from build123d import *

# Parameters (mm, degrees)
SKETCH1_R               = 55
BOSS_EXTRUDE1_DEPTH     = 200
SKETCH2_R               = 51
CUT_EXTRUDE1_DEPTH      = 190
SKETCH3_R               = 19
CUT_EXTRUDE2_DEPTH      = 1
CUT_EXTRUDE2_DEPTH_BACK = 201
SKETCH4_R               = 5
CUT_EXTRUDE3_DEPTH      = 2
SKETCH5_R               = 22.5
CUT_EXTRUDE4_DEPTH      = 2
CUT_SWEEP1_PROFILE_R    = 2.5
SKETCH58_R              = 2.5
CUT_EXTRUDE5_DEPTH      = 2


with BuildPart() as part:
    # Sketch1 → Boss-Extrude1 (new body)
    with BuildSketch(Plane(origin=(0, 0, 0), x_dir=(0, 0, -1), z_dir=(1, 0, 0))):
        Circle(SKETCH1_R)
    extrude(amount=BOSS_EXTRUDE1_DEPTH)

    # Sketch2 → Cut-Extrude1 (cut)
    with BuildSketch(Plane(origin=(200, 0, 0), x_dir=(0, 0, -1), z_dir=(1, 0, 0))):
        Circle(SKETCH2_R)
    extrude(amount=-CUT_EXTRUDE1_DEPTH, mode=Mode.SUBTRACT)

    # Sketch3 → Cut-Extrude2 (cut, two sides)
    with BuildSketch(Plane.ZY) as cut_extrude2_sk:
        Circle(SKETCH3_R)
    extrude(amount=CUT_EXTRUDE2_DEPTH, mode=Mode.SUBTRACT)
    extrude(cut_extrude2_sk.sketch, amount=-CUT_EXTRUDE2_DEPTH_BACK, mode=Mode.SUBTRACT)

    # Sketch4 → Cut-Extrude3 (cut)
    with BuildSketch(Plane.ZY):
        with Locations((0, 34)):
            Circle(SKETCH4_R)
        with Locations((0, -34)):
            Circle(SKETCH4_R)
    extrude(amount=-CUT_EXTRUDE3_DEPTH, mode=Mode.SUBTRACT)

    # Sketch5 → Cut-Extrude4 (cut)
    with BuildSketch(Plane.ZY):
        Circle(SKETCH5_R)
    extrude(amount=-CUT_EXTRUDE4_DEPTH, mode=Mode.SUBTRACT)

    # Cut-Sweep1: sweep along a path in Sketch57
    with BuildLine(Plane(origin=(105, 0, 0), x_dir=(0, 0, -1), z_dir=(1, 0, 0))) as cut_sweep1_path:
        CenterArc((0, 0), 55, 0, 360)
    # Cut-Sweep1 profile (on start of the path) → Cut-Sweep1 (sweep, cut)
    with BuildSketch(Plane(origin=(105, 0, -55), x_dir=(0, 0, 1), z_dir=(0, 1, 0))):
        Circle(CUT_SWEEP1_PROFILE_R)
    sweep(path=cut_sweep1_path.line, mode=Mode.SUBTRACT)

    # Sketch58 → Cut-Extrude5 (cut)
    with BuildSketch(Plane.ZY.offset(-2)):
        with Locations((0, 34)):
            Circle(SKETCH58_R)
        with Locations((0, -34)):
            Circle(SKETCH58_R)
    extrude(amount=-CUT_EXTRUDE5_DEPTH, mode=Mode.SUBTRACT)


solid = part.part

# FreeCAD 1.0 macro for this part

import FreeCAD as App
import Part
import Sketcher

doc = App.newDocument("Part")
body = doc.addObject("PartDesign::Body", "Body")

# Sketch on YZ plane
sketch1 = body.newObject("Sketcher::SketchObject", "Sketch")
sketch1.AttachmentSupport = (doc.getObject("YZ_Plane"), [""])
sketch1.MapMode = "FlatFace"
sketch1.addGeometry(Part.Circle(App.Vector(0, 0, 0), App.Vector(0, 0, 1), 55), False)
sketch1.addConstraint([
    Sketcher.Constraint("Coincident", 0, 3, -1, 1),
    Sketcher.Constraint("Diameter", 0, 110.0),
])
pad1 = body.newObject("PartDesign::Pad", "Pad")
pad1.Profile = sketch1
pad1.Length = 200

# Sketch on YZ plane
sketch2 = body.newObject("Sketcher::SketchObject", "Sketch001")
sketch2.AttachmentSupport = (doc.getObject("YZ_Plane"), [""])
sketch2.MapMode = "FlatFace"
sketch2.AttachmentOffset = App.Placement(App.Vector(0, 0, 200), App.Rotation())
sketch2.addGeometry(Part.Circle(App.Vector(0, 0, 0), App.Vector(0, 0, 1), 51), False)
sketch2.addConstraint([
    Sketcher.Constraint("Coincident", 0, 3, -1, 1),
    Sketcher.Constraint("Diameter", 0, 102.0),
])
pocket1 = body.newObject("PartDesign::Pocket", "Pocket")
pocket1.Profile = sketch2
pocket1.Length = 190

# Sketch on YZ plane
sketch3 = body.newObject("Sketcher::SketchObject", "Sketch002")
sketch3.AttachmentSupport = (doc.getObject("YZ_Plane"), [""])
sketch3.MapMode = "FlatFace"
sketch3.addGeometry(Part.Circle(App.Vector(0, 0, 0), App.Vector(0, 0, 1), 19), False)
sketch3.addConstraint([
    Sketcher.Constraint("Coincident", 0, 3, -1, 1),
    Sketcher.Constraint("Diameter", 0, 38.0),
])
pocket2 = body.newObject("PartDesign::Pocket", "Pocket001")
pocket2.Profile = sketch3
pocket2.Type = "ThroughAll"
pocket2.Midplane = True

# Sketch on YZ plane
sketch4 = body.newObject("Sketcher::SketchObject", "Sketch003")
sketch4.AttachmentSupport = (doc.getObject("YZ_Plane"), [""])
sketch4.MapMode = "FlatFace"
sketch4.addGeometry([
    Part.Circle(App.Vector(34, 0, 0), App.Vector(0, 0, 1), 5),
    Part.Circle(App.Vector(-34, 0, 0), App.Vector(0, 0, 1), 5),
], False)
sketch4.addConstraint([
    Sketcher.Constraint("Equal", 0, 1),
    Sketcher.Constraint("Symmetric", 0, 3, 1, 3, -1, 1),
    Sketcher.Constraint("PointOnObject", 0, 3, -1),
    Sketcher.Constraint("Diameter", 0, 10.0),
    Sketcher.Constraint("DistanceX", -1, 1, 0, 3, 34.0),
])
pocket3 = body.newObject("PartDesign::Pocket", "Pocket002")
pocket3.Profile = sketch4
pocket3.Length = 2
pocket3.Reversed = True

# Sketch on YZ plane
sketch5 = body.newObject("Sketcher::SketchObject", "Sketch004")
sketch5.AttachmentSupport = (doc.getObject("YZ_Plane"), [""])
sketch5.MapMode = "FlatFace"
sketch5.addGeometry(Part.Circle(App.Vector(0, 0, 0), App.Vector(0, 0, 1), 22), False)
sketch5.addConstraint([
    Sketcher.Constraint("Coincident", 0, 3, -1, 1),
    Sketcher.Constraint("Diameter", 0, 45.0),
])
pocket4 = body.newObject("PartDesign::Pocket", "Pocket003")
pocket4.Profile = sketch5
pocket4.Length = 2
pocket4.Reversed = True

# Sketch on XZ plane
sketch6 = body.newObject("Sketcher::SketchObject", "Sketch005")
sketch6.AttachmentSupport = (doc.getObject("XZ_Plane"), [""])
sketch6.MapMode = "FlatFace"
sketch6.addGeometry(Part.Circle(App.Vector(105, -55, 0), App.Vector(0, 0, 1), 2.5), False)
sketch6.addConstraint([
    Sketcher.Constraint("Diameter", 0, 5.0),
    Sketcher.Constraint("DistanceX", -1, 1, 0, 3, 105.0),
    Sketcher.Constraint("DistanceY", 0, 3, -1, 1, 55.0),
])

# Sketch on YZ plane
sketch7 = body.newObject("Sketcher::SketchObject", "Sketch006")
sketch7.AttachmentSupport = (doc.getObject("YZ_Plane"), [""])
sketch7.MapMode = "FlatFace"
sketch7.AttachmentOffset = App.Placement(App.Vector(0, 0, 105), App.Rotation())
sketch7.addGeometry(Part.Circle(App.Vector(0, 0, 0), App.Vector(0, 0, 1), 55), False)
sketch7.addConstraint([
    Sketcher.Constraint("Coincident", 0, 3, -1, 1),
    Sketcher.Constraint("Diameter", 0, 110.0),
])
doc.recompute()

subtractivepipe = body.newObject("PartDesign::SubtractivePipe", "SubtractivePipe")
subtractivepipe.Profile = sketch6
subtractivepipe.Spine = (sketch7, ["Edge1"])

# Sketch on YZ plane
sketch8 = body.newObject("Sketcher::SketchObject", "Sketch007")
sketch8.AttachmentSupport = (doc.getObject("YZ_Plane"), [""])
sketch8.MapMode = "FlatFace"
sketch8.AttachmentOffset = App.Placement(App.Vector(0, 0, 2), App.Rotation())
sketch8.addGeometry([
    Part.Circle(App.Vector(34, 0, 0), App.Vector(0, 0, 1), 2.5),
    Part.Circle(App.Vector(-34, 0, 0), App.Vector(0, 0, 1), 2.5),
], False)
sketch8.addConstraint([
    Sketcher.Constraint("Equal", 0, 1),
    Sketcher.Constraint("Symmetric", 0, 3, 1, 3, -1, 1),
    Sketcher.Constraint("PointOnObject", 0, 3, -1),
    Sketcher.Constraint("Diameter", 0, 5.0),
    Sketcher.Constraint("DistanceX", -1, 1, 0, 3, 34.0),
])
pocket5 = body.newObject("PartDesign::Pocket", "Pocket004")
pocket5.Profile = sketch8
pocket5.Length = 2
pocket5.Reversed = True

doc.recompute()
